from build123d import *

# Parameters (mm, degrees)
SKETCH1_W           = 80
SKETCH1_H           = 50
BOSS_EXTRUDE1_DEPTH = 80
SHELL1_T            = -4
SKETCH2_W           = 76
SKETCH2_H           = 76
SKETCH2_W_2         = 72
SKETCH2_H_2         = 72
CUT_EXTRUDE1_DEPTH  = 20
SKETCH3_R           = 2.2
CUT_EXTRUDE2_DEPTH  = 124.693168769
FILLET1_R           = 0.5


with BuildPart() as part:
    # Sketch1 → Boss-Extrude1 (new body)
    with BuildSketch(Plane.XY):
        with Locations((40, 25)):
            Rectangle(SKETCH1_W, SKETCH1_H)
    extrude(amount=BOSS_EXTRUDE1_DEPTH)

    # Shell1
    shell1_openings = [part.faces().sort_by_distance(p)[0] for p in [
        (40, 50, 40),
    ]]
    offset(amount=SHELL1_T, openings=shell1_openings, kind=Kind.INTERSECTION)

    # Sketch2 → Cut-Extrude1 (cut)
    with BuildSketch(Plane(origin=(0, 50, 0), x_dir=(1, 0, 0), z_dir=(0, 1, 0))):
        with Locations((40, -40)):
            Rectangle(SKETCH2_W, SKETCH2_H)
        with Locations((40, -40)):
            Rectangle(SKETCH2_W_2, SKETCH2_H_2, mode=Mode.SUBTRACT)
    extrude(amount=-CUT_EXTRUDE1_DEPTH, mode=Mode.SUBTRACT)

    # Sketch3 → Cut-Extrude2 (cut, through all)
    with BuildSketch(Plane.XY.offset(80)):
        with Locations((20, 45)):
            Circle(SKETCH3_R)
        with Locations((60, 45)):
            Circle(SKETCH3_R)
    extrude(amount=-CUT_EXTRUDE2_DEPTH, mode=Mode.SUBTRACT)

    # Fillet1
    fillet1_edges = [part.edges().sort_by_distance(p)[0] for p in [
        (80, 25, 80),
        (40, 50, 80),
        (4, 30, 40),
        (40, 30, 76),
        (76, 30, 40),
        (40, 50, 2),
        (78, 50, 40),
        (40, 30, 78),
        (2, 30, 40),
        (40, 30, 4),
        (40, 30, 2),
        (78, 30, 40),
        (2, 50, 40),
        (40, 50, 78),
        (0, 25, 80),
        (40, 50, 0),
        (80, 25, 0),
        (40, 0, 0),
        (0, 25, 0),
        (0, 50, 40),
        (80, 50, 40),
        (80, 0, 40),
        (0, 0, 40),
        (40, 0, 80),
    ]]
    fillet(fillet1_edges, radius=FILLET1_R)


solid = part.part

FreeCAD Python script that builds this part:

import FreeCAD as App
import Part
import Sketcher

V = App.Vector


def edges_at(feature, points):
    """Names of the edges that pass closest to the given points."""
    edges = feature.Shape.Edges
    near = lambda p: min(range(len(edges)), key=lambda i: edges[i].distToShape(Part.Vertex(*p))[0])
    return sorted({f"Edge{near(p) + 1}" for p in points})


def faces_at(feature, points):
    """Names of the faces that lie closest to the given points."""
    faces = feature.Shape.Faces
    near = lambda p: min(range(len(faces)), key=lambda i: faces[i].distToShape(Part.Vertex(*p))[0])
    return sorted({f"Face{near(p) + 1}" for p in points})

doc = App.newDocument("Part")
body = doc.addObject("PartDesign::Body", "Body")

# Sketch on XY plane
sketch1 = body.newObject("Sketcher::SketchObject", "Sketch")
sketch1.AttachmentSupport = (doc.getObject("XY_Plane"), [""])
sketch1.MapMode = "FlatFace"
sketch1.addGeometry(Part.LineSegment(V(0, 50, 0), V(0, 0, 0)), False)
sketch1.addGeometry(Part.LineSegment(V(0, 0, 0), V(80, 0, 0)), False)
sketch1.addGeometry(Part.LineSegment(V(80, 0, 0), V(80, 50, 0)), False)
sketch1.addGeometry(Part.LineSegment(V(80, 50, 0), V(0, 50, 0)), False)
sketch1.addConstraint(Sketcher.Constraint("Coincident", 0, 2, 1, 1))
sketch1.addConstraint(Sketcher.Constraint("Coincident", 1, 2, 2, 1))
sketch1.addConstraint(Sketcher.Constraint("Coincident", 2, 2, 3, 1))
sketch1.addConstraint(Sketcher.Constraint("Coincident", 3, 2, 0, 1))
sketch1.addConstraint(Sketcher.Constraint("Vertical", 0))
sketch1.addConstraint(Sketcher.Constraint("Horizontal", 1))
sketch1.addConstraint(Sketcher.Constraint("Vertical", 2))
sketch1.addConstraint(Sketcher.Constraint("Horizontal", 3))
sketch1.addConstraint(Sketcher.Constraint("Coincident", 0, 2, -1, 1))
sketch1.addConstraint(Sketcher.Constraint("DistanceX", 1, 1, 1, 2, 80.0))
sketch1.addConstraint(Sketcher.Constraint("DistanceY", 0, 2, 0, 1, 50.0))
pad1 = body.newObject("PartDesign::Pad", "Pad")
pad1.Profile = sketch1
pad1.Length = 80
doc.recompute()

thickness = body.newObject("PartDesign::Thickness", "Thickness")
thickness.Base = (pad1, faces_at(pad1, [(40, 50, 40)]))
thickness.Value = 4
thickness.Reversed = True
thickness.Join = "Intersection"

# Sketch on XZ plane
sketch2 = body.newObject("Sketcher::SketchObject", "Sketch001")
sketch2.AttachmentSupport = (doc.getObject("XZ_Plane"), [""])
sketch2.MapMode = "FlatFace"
sketch2.AttachmentOffset = App.Placement(V(0, 0, -50), App.Rotation())
sketch2.addGeometry(Part.LineSegment(V(2, 2, 0), V(2, 78, 0)), False)
sketch2.addGeometry(Part.LineSegment(V(2, 78, 0), V(78, 78, 0)), False)
sketch2.addGeometry(Part.LineSegment(V(78, 78, 0), V(78, 2, 0)), False)
sketch2.addGeometry(Part.LineSegment(V(78, 2, 0), V(2, 2, 0)), False)
sketch2.addGeometry(Part.LineSegment(V(76, 76, 0), V(4, 76, 0)), False)
sketch2.addGeometry(Part.LineSegment(V(4, 76, 0), V(4, 4, 0)), False)
sketch2.addGeometry(Part.LineSegment(V(4, 4, 0), V(76, 4, 0)), False)
sketch2.addGeometry(Part.LineSegment(V(76, 4, 0), V(76, 76, 0)), False)
sketch2.addConstraint(Sketcher.Constraint("Coincident", 0, 2, 1, 1))
sketch2.addConstraint(Sketcher.Constraint("Coincident", 1, 2, 2, 1))
sketch2.addConstraint(Sketcher.Constraint("Coincident", 2, 2, 3, 1))
sketch2.addConstraint(Sketcher.Constraint("Coincident", 3, 2, 0, 1))
sketch2.addConstraint(Sketcher.Constraint("Coincident", 4, 2, 5, 1))
sketch2.addConstraint(Sketcher.Constraint("Coincident", 5, 2, 6, 1))
sketch2.addConstraint(Sketcher.Constraint("Coincident", 6, 2, 7, 1))
sketch2.addConstraint(Sketcher.Constraint("Coincident", 7, 2, 4, 1))
sketch2.addConstraint(Sketcher.Constraint("Vertical", 0))
sketch2.addConstraint(Sketcher.Constraint("Horizontal", 1))
sketch2.addConstraint(Sketcher.Constraint("Vertical", 2))
sketch2.addConstraint(Sketcher.Constraint("Horizontal", 3))
sketch2.addConstraint(Sketcher.Constraint("Horizontal", 4))
sketch2.addConstraint(Sketcher.Constraint("Vertical", 5))
sketch2.addConstraint(Sketcher.Constraint("Horizontal", 6))
sketch2.addConstraint(Sketcher.Constraint("Vertical", 7))
sketch2.addConstraint(Sketcher.Constraint("Equal", 3, 0))
sketch2.addConstraint(Sketcher.Constraint("Equal", 6, 5))
sketch2.addConstraint(Sketcher.Constraint("DistanceX", 1, 1, 1, 2, 76.0))
sketch2.addConstraint(Sketcher.Constraint("DistanceX", 4, 2, 4, 1, 72.0))
sketch2.addConstraint(Sketcher.Constraint("DistanceX", -1, 1, 0, 2, 2.0))
sketch2.addConstraint(Sketcher.Constraint("DistanceY", -1, 1, 0, 2, 78.0))
sketch2.addConstraint(Sketcher.Constraint("DistanceX", -1, 1, 4, 2, 4.0))
sketch2.addConstraint(Sketcher.Constraint("DistanceY", -1, 1, 4, 2, 76.0))
pocket1 = body.newObject("PartDesign::Pocket", "Pocket")
pocket1.Profile = sketch2
pocket1.Length = 20
pocket1.Reversed = True

# Sketch on XY plane
sketch3 = body.newObject("Sketcher::SketchObject", "Sketch002")
sketch3.AttachmentSupport = (doc.getObject("XY_Plane"), [""])
sketch3.MapMode = "FlatFace"
sketch3.AttachmentOffset = App.Placement(V(0, 0, 80), App.Rotation())
sketch3.addGeometry(Part.Circle(V(20, 45, 0), V(0, 0, 1), 2.2), False)
sketch3.addGeometry(Part.Circle(V(60, 45, 0), V(0, 0, 1), 2.2), False)
sketch3.addConstraint(Sketcher.Constraint("Equal", 0, 1))
sketch3.addConstraint(Sketcher.Constraint("Horizontal", 0, 3, 1, 3))
sketch3.addConstraint(Sketcher.Constraint("Diameter", 0, 4.4))
sketch3.addConstraint(Sketcher.Constraint("DistanceX", -1, 1, 0, 3, 20.0))
sketch3.addConstraint(Sketcher.Constraint("DistanceY", -1, 1, 0, 3, 45.0))
sketch3.addConstraint(Sketcher.Constraint("DistanceX", -1, 1, 1, 3, 60.0))
pocket2 = body.newObject("PartDesign::Pocket", "Pocket001")
pocket2.Profile = sketch3
pocket2.Type = "ThroughAll"
doc.recompute()

fillet = body.newObject("PartDesign::Fillet", "Fillet")
fillet.Base = (pocket2, edges_at(pocket2, [
    (80, 25, 80),
    (40, 50, 80),
    (4, 30, 40),
    (40, 30, 76),
    (76, 30, 40),
    (40, 50, 2),
    (78, 50, 40),
    (40, 30, 78),
    (2, 30, 40),
    (40, 30, 4),
    (40, 30, 2),
    (78, 30, 40),
    (2, 50, 40),
    (40, 50, 78),
    (0, 25, 80),
    (40, 50, 0),
    (80, 25, 0),
    (40, 0, 0),
    (0, 25, 0),
    (0, 50, 40),
    (80, 50, 40),
    (80, 0, 40),
    (0, 0, 40),
    (40, 0, 80),
]))
fillet.Radius = 0.5

doc.recompute()
